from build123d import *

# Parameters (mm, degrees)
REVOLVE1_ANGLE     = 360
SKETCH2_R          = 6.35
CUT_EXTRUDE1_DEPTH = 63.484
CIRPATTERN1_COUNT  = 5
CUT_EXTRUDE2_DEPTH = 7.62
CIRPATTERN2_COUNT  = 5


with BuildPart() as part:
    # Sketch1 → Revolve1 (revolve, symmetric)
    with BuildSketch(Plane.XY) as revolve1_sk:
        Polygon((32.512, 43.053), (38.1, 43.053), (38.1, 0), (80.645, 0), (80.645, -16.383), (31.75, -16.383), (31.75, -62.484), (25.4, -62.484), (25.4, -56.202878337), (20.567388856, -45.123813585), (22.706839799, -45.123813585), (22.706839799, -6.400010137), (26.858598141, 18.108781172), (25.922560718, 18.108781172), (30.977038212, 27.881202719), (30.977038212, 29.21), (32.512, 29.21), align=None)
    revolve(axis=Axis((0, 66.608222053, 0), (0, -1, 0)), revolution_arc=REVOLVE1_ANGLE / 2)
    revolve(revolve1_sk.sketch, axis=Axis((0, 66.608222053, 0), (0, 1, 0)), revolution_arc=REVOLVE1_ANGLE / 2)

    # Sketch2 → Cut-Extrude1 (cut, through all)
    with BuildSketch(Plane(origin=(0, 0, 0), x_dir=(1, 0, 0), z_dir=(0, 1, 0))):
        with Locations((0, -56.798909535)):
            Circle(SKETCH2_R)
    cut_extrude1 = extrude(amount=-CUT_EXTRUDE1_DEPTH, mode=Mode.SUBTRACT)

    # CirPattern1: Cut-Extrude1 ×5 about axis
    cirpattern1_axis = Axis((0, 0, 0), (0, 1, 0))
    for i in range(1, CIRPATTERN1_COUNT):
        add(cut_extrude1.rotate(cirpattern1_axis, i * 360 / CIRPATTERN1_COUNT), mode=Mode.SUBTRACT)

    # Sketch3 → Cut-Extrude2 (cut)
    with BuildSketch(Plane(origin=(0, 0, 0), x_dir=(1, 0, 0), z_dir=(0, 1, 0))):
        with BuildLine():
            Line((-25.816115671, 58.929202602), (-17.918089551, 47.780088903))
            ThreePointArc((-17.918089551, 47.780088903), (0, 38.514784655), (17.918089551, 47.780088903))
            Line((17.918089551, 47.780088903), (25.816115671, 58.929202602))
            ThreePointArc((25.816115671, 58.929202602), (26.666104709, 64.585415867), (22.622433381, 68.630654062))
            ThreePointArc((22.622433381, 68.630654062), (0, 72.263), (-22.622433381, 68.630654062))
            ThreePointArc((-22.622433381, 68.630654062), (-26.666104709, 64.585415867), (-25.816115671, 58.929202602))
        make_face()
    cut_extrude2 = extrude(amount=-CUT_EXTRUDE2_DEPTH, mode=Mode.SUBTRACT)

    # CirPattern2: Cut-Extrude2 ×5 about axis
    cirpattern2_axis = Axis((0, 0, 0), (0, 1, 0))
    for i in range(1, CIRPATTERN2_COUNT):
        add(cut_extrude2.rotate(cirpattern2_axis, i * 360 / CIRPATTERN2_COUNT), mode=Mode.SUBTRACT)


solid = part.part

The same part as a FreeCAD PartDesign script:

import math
import FreeCAD as App
import Part
import Sketcher
from FreeCAD import Vector
Q = App.Units.Quantity


def add_polygon(sketch, points):
    """Adds a closed chain of lines whose ends are joined by coincident constraints."""
    first, n = sketch.GeometryCount, len(points)
    for a, b in zip(points, points[1:] + points[:1]):
        sketch.addGeometry(Part.LineSegment(App.Vector(*a, 0), App.Vector(*b, 0)), False)
    for i in range(n):
        sketch.addConstraint(Sketcher.Constraint("Coincident", first + i, 2, first + (i + 1) % n, 1))

doc = App.newDocument("Part")
params = doc.addObject("Spreadsheet::Sheet", "Params")
for row, (alias, value) in enumerate([
    ("sketch1_width", "0.22 in"),
    ("sketch1_width2", "0.25 in"),
    ("sketch1_width3", "1.925 in"),
    ("sketch1_height", "0.545 in"),
    ("sketch1_height2", "1.815 in"),
    ("revolution_angle", "180 deg"),
    ("sketch2_width", "0.22 in"),
    ("sketch2_width2", "0.25 in"),
    ("sketch2_width3", "1.925 in"),
    ("sketch2_height", "0.545 in"),
    ("sketch2_height2", "1.815 in"),
    ("revolution2_angle", "180 deg"),
    ("sketch3_diameter", "0.5 in"),
    ("sketch4_radius", "0.25 in"),
    ("sketch4_radius2", "2.845 in"),
    ("pocket2_length", "0.3 in"),
], start=1):
    params.set(f"A{row}", alias)
    params.set(f"B{row}", "=" + value)
    params.setAlias(f"B{row}", alias)

body = doc.addObject("PartDesign::Body", "Body")

sketch1 = doc.addObject("Sketcher::SketchObject", "Sketch")
body.addObject(sketch1)
sketch1.AttachmentSupport = (doc.XY_Plane, [""])
sketch1.MapMode = "FlatFace"
add_polygon(sketch1, [(38.1, 43.053), (32.512, 43.053), (32.512, 29.21), (30.977038, 29.21), (30.977038, 27.881203), (25.922561, 18.108781), (26.858598, 18.108781), (22.70684, -6.40001), (22.70684, -45.123814), (20.567389, -45.123814), (25.4, -56.202878), (25.4, -62.484), (31.75, -62.484), (31.75, -16.383), (80.645, -16.383), (80.645, 0), (38.1, 0)])
sketch1.addConstraint(Sketcher.Constraint("Horizontal", 0))
sketch1.addConstraint(Sketcher.Constraint("Vertical", 1))
sketch1.addConstraint(Sketcher.Constraint("Horizontal", 2))
sketch1.addConstraint(Sketcher.Constraint("Vertical", 3))
sketch1.addConstraint(Sketcher.Constraint("Horizontal", 5))
sketch1.addConstraint(Sketcher.Constraint("Vertical", 7))
sketch1.addConstraint(Sketcher.Constraint("Horizontal", 8))
sketch1.addConstraint(Sketcher.Constraint("Vertical", 10))
sketch1.addConstraint(Sketcher.Constraint("Horizontal", 11))
sketch1.addConstraint(Sketcher.Constraint("Vertical", 12))
sketch1.addConstraint(Sketcher.Constraint("Horizontal", 13))
sketch1.addConstraint(Sketcher.Constraint("Vertical", 14))
sketch1.addConstraint(Sketcher.Constraint("Horizontal", 15))
sketch1.addConstraint(Sketcher.Constraint("Vertical", 16))
sketch1.addConstraint(Sketcher.Constraint("PointOnObject", 14, 2, -1))
sketch1.addConstraint(Sketcher.Constraint("DistanceX", -1, 1, 9, 2, Q("1 in")))
sketch1.addConstraint(Sketcher.Constraint("DistanceX", 0, 2, 0, 1, Q("0.22 in")))
sketch1.addConstraint(Sketcher.Constraint("DistanceX", 11, 1, 11, 2, Q("0.25 in")))
sketch1.addConstraint(Sketcher.Constraint("DistanceX", -1, 1, 15, 2, Q("1.5 in")))
sketch1.addConstraint(Sketcher.Constraint("DistanceX", 13, 1, 13, 2, Q("1.925 in")))
sketch1.addConstraint(Sketcher.Constraint("DistanceY", 1, 2, 1, 1, Q("0.545 in")))
sketch1.addConstraint(Sketcher.Constraint("DistanceY", 12, 1, 12, 2, Q("1.815 in")))
sketch1.addConstraint(Sketcher.Constraint("DistanceY", 14, 1, 14, 2, Q("0.645 in")))
sketch1.addConstraint(Sketcher.Constraint("DistanceY", 16, 1, 16, 2, Q("1.695 in")))
sketch1.addConstraint(Sketcher.Constraint("DistanceX", 2, 2, 2, 1, 1.534962))
sketch1.addConstraint(Sketcher.Constraint("DistanceX", 8, 2, 8, 1, 2.139451))
sketch1.addConstraint(Sketcher.Constraint("DistanceY", 10, 2, 10, 1, 6.281122))
sketch1.addConstraint(Sketcher.Constraint("DistanceX", -1, 1, 5, 2, 26.858598))
sketch1.addConstraint(Sketcher.Constraint("DistanceX", 6, 2, 3, 2, 8.270198))
sketch1.addConstraint(Sketcher.Constraint("Distance", 4, 11.00218))
sketch1.addConstraint(Sketcher.Constraint("DistanceX", 5, 1, 5, 2, 0.936037))
sketch1.addConstraint(Sketcher.Constraint("DistanceY", 3, 2, 3, 1, 1.328797))
sketch1.addConstraint(Sketcher.Constraint("DistanceY", 7, 2, 7, 1, 38.723803))
sketch1.addConstraint(Sketcher.Constraint("DistanceY", 6, 2, -1, 1, 6.40001))
sketch1.setExpression("Constraints[33]", "Params.sketch1_width")
sketch1.setExpression("Constraints[34]", "Params.sketch1_width2")
sketch1.setExpression("Constraints[36]", "Params.sketch1_width3")
sketch1.setExpression("Constraints[37]", "Params.sketch1_height")
sketch1.setExpression("Constraints[38]", "Params.sketch1_height2")
revolution = doc.addObject("PartDesign::Revolution", "Revolution")
body.addObject(revolution)
revolution.Profile = sketch1
revolution.ReferenceAxis = (sketch1, ["V_Axis"])
revolution.setExpression("Angle", "Params.revolution_angle")
revolution.Reversed = True

sketch2 = doc.addObject("Sketcher::SketchObject", "Sketch001")
body.addObject(sketch2)
sketch2.AttachmentSupport = (doc.XY_Plane, [""])
sketch2.MapMode = "FlatFace"
add_polygon(sketch2, [(38.1, 43.053), (32.512, 43.053), (32.512, 29.21), (30.977038, 29.21), (30.977038, 27.881203), (25.922561, 18.108781), (26.858598, 18.108781), (22.70684, -6.40001), (22.70684, -45.123814), (20.567389, -45.123814), (25.4, -56.202878), (25.4, -62.484), (31.75, -62.484), (31.75, -16.383), (80.645, -16.383), (80.645, 0), (38.1, 0)])
sketch2.addConstraint(Sketcher.Constraint("Horizontal", 0))
sketch2.addConstraint(Sketcher.Constraint("Vertical", 1))
sketch2.addConstraint(Sketcher.Constraint("Horizontal", 2))
sketch2.addConstraint(Sketcher.Constraint("Vertical", 3))
sketch2.addConstraint(Sketcher.Constraint("Horizontal", 5))
sketch2.addConstraint(Sketcher.Constraint("Vertical", 7))
sketch2.addConstraint(Sketcher.Constraint("Horizontal", 8))
sketch2.addConstraint(Sketcher.Constraint("Vertical", 10))
sketch2.addConstraint(Sketcher.Constraint("Horizontal", 11))
sketch2.addConstraint(Sketcher.Constraint("Vertical", 12))
sketch2.addConstraint(Sketcher.Constraint("Horizontal", 13))
sketch2.addConstraint(Sketcher.Constraint("Vertical", 14))
sketch2.addConstraint(Sketcher.Constraint("Horizontal", 15))
sketch2.addConstraint(Sketcher.Constraint("Vertical", 16))
sketch2.addConstraint(Sketcher.Constraint("PointOnObject", 14, 2, -1))
sketch2.addConstraint(Sketcher.Constraint("DistanceX", -1, 1, 9, 2, Q("1 in")))
sketch2.addConstraint(Sketcher.Constraint("DistanceX", 0, 2, 0, 1, Q("0.22 in")))
sketch2.addConstraint(Sketcher.Constraint("DistanceX", 11, 1, 11, 2, Q("0.25 in")))
sketch2.addConstraint(Sketcher.Constraint("DistanceX", -1, 1, 15, 2, Q("1.5 in")))
sketch2.addConstraint(Sketcher.Constraint("DistanceX", 13, 1, 13, 2, Q("1.925 in")))
sketch2.addConstraint(Sketcher.Constraint("DistanceY", 1, 2, 1, 1, Q("0.545 in")))
sketch2.addConstraint(Sketcher.Constraint("DistanceY", 12, 1, 12, 2, Q("1.815 in")))
sketch2.addConstraint(Sketcher.Constraint("DistanceY", 14, 1, 14, 2, Q("0.645 in")))
sketch2.addConstraint(Sketcher.Constraint("DistanceY", 16, 1, 16, 2, Q("1.695 in")))
sketch2.addConstraint(Sketcher.Constraint("DistanceX", 2, 2, 2, 1, 1.534962))
sketch2.addConstraint(Sketcher.Constraint("DistanceX", 8, 2, 8, 1, 2.139451))
sketch2.addConstraint(Sketcher.Constraint("DistanceY", 10, 2, 10, 1, 6.281122))
sketch2.addConstraint(Sketcher.Constraint("DistanceX", -1, 1, 5, 2, 26.858598))
sketch2.addConstraint(Sketcher.Constraint("DistanceX", 6, 2, 3, 2, 8.270198))
sketch2.addConstraint(Sketcher.Constraint("Distance", 4, 11.00218))
sketch2.addConstraint(Sketcher.Constraint("DistanceX", 5, 1, 5, 2, 0.936037))
sketch2.addConstraint(Sketcher.Constraint("DistanceY", 3, 2, 3, 1, 1.328797))
sketch2.addConstraint(Sketcher.Constraint("DistanceY", 7, 2, 7, 1, 38.723803))
sketch2.addConstraint(Sketcher.Constraint("DistanceY", 6, 2, -1, 1, 6.40001))
sketch2.setExpression("Constraints[33]", "Params.sketch2_width")
sketch2.setExpression("Constraints[34]", "Params.sketch2_width2")
sketch2.setExpression("Constraints[36]", "Params.sketch2_width3")
sketch2.setExpression("Constraints[37]", "Params.sketch2_height")
sketch2.setExpression("Constraints[38]", "Params.sketch2_height2")
revolution2 = doc.addObject("PartDesign::Revolution", "Revolution001")
body.addObject(revolution2)
revolution2.Profile = sketch2
revolution2.ReferenceAxis = (sketch2, ["V_Axis"])
revolution2.setExpression("Angle", "Params.revolution2_angle")

sketch3 = doc.addObject("Sketcher::SketchObject", "Sketch002")
body.addObject(sketch3)
sketch3.AttachmentSupport = (doc.XZ_Plane, [""])
sketch3.MapMode = "FlatFace"
sketch3.addGeometry(Part.Circle(Vector(0, 56.79891, 0), Vector(0, 0, 1), 6.35), False)
sketch3.addConstraint(Sketcher.Constraint("PointOnObject", 0, 3, -2))
sketch3.addConstraint(Sketcher.Constraint("Diameter", 0, Q("0.5 in")))
sketch3.addConstraint(Sketcher.Constraint("DistanceY", -1, 1, 0, 3, 56.79891))
sketch3.setExpression("Constraints[1]", "Params.sketch3_diameter")
pocket1 = doc.addObject("PartDesign::Pocket", "Pocket")
body.addObject(pocket1)
pocket1.Profile = sketch3
pocket1.Type = "ThroughAll"
pocket1.Reversed = True
doc.recompute()

polarpattern = doc.addObject("PartDesign::PolarPattern", "PolarPattern")
body.addObject(polarpattern)
polarpattern.Originals = [pocket1]
polarpattern.Axis = (doc.Y_Axis, [""])
polarpattern.Angle = 360
polarpattern.Occurrences = 5
body.Tip = polarpattern

sketch4 = doc.addObject("Sketcher::SketchObject", "Sketch003")
body.addObject(sketch4)
sketch4.AttachmentSupport = (doc.XZ_Plane, [""])
sketch4.MapMode = "FlatFace"
sketch4.addGeometry(Part.LineSegment(Vector(-25.816116, -58.929203, 0), Vector(-17.91809, -47.780089, 0)), False)
sketch4.addGeometry(Part.ArcOfCircle(Part.Circle(Vector(0, -60.473254, 0), Vector(0, 0, 1), 21.958469), math.radians(35.313736), math.radians(144.686264)), False)
sketch4.addGeometry(Part.LineSegment(Vector(17.91809, -47.780089, 0), Vector(25.816116, -58.929203, 0)), False)
sketch4.addGeometry(Part.ArcOfCircle(Part.Circle(Vector(20.634522, -62.599841, 0), Vector(0, 0, 1), 6.35), math.radians(-71.756447), math.radians(35.313736)), False)
sketch4.addGeometry(Part.ArcOfCircle(Part.Circle(Vector(0, 0, 0), Vector(0, 0, 1), 72.263), math.radians(-108.243553), math.radians(-71.756447)), False)
sketch4.addGeometry(Part.ArcOfCircle(Part.Circle(Vector(-20.634522, -62.599841, 0), Vector(0, 0, 1), 6.35), math.radians(144.686264), math.radians(251.756447)), False)
sketch4.addConstraint(Sketcher.Constraint("Tangent", 0, 2, 1, 2))
sketch4.addConstraint(Sketcher.Constraint("Tangent", 1, 1, 2, 1))
sketch4.addConstraint(Sketcher.Constraint("Tangent", 2, 2, 3, 2))
sketch4.addConstraint(Sketcher.Constraint("Tangent", 3, 1, 4, 2))
sketch4.addConstraint(Sketcher.Constraint("Tangent", 4, 1, 5, 2))
sketch4.addConstraint(Sketcher.Constraint("Tangent", 5, 1, 0, 1))
sketch4.addConstraint(Sketcher.Constraint("Coincident", 4, 3, -1, 1))
sketch4.addConstraint(Sketcher.Constraint("Equal", 3, 5))
sketch4.addConstraint(Sketcher.Constraint("Symmetric", 0, 2, 1, 1, -2))
sketch4.addConstraint(Sketcher.Constraint("Radius", 3, Q("0.25 in")))
sketch4.addConstraint(Sketcher.Constraint("Radius", 4, Q("2.845 in")))
sketch4.addConstraint(Sketcher.Constraint("Radius", 1, 21.958469))
sketch4.addConstraint(Sketcher.Constraint("DistanceY", 3, 1, 1, 3, 8.1574))
sketch4.addConstraint(Sketcher.Constraint("DistanceX", -1, 1, 3, 3, 20.634522))
sketch4.setExpression("Constraints[9]", "Params.sketch4_radius")
sketch4.setExpression("Constraints[10]", "Params.sketch4_radius2")
pocket2 = doc.addObject("PartDesign::Pocket", "Pocket001")
body.addObject(pocket2)
pocket2.Profile = sketch4
pocket2.setExpression("Length", "Params.pocket2_length")
pocket2.Reversed = True
doc.recompute()

polarpattern2 = doc.addObject("PartDesign::PolarPattern", "PolarPattern001")
body.addObject(polarpattern2)
polarpattern2.Originals = [pocket2]
polarpattern2.Axis = (doc.Y_Axis, [""])
polarpattern2.Angle = 360
polarpattern2.Occurrences = 5
body.Tip = polarpattern2

doc.recompute()
